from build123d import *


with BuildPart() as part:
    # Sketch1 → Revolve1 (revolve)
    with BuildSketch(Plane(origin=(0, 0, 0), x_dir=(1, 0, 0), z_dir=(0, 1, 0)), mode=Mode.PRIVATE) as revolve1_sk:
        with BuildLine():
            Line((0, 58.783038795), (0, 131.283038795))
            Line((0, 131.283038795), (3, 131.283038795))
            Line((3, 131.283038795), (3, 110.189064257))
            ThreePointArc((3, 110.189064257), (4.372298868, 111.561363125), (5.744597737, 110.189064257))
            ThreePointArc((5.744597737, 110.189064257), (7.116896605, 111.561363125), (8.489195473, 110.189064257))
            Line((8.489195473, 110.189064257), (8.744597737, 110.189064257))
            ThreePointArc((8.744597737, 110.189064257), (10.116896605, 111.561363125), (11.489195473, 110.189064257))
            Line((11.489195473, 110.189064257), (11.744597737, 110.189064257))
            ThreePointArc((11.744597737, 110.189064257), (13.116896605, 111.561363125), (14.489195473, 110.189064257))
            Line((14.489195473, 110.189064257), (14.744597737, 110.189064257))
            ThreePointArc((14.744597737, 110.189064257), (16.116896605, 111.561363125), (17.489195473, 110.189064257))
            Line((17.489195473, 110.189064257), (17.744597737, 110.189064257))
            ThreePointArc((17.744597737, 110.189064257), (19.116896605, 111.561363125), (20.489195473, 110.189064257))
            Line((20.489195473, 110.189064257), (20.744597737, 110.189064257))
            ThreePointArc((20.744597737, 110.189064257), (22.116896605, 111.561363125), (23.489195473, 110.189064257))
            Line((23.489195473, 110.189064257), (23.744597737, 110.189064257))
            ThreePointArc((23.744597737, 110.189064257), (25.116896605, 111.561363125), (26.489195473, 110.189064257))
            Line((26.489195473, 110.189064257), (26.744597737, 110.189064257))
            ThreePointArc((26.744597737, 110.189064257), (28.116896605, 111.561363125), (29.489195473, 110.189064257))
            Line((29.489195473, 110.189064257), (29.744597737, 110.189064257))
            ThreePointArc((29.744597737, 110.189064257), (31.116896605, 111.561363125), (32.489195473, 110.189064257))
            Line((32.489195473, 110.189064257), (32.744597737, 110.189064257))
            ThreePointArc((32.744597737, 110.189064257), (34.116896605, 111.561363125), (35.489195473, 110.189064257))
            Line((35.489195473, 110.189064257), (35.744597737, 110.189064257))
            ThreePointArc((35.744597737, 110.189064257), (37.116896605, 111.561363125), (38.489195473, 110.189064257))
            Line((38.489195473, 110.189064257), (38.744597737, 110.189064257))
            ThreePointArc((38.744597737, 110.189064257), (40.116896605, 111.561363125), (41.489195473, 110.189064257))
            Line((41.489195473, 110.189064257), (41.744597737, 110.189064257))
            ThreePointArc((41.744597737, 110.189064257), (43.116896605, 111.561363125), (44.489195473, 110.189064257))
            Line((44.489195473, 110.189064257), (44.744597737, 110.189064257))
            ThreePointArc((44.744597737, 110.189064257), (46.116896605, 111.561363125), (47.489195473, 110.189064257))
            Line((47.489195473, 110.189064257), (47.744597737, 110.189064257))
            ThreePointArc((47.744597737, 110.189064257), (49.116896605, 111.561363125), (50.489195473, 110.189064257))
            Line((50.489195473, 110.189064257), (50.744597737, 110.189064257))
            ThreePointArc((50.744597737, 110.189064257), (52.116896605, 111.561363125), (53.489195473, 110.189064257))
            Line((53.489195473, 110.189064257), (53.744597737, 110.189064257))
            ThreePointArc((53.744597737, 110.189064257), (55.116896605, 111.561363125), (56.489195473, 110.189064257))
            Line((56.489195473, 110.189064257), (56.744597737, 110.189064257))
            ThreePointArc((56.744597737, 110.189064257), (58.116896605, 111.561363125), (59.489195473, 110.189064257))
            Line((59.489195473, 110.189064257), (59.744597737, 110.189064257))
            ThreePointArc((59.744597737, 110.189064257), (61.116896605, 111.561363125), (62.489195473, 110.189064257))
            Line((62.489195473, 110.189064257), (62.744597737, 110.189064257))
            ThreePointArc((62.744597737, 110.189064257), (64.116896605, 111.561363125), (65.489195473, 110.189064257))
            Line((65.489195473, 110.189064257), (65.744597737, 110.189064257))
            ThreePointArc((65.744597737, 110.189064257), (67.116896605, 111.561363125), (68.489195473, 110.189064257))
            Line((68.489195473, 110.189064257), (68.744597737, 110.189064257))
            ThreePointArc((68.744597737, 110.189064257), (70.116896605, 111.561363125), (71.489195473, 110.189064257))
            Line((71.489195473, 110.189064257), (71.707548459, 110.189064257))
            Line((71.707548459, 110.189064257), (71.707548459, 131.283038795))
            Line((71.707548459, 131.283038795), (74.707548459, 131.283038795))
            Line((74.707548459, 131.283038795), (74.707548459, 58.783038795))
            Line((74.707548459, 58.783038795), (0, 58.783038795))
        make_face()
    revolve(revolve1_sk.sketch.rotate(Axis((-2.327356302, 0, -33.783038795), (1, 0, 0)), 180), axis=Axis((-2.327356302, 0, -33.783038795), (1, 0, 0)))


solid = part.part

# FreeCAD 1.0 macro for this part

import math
import FreeCAD as App
import Part
import Sketcher

V = App.Vector
Q = App.Units.Quantity

doc = App.newDocument("Part")
params = doc.addObject("Spreadsheet::Sheet", "Params")
for row, (alias, value) in enumerate([
    ("sketch1_width", "3 mm"),
    ("sketch1_height", "72.5 mm"),
    ("revolution_angle", "360 deg"),
], start=1):
    params.set(f"A{row}", alias)
    params.set(f"B{row}", "=" + value)
    params.setAlias(f"B{row}", alias)

body = doc.addObject("PartDesign::Body", "Body")

# Sketch on XZ plane
sketch1 = body.newObject("Sketcher::SketchObject", "Sketch")
sketch1.AttachmentSupport = (doc.getObject("XZ_Plane"), [""])
sketch1.MapMode = "FlatFace"
sketch1.addGeometry(Part.LineSegment(V(0, -131.28, 0), V(0, -58.78, 0)), False)
sketch1.addGeometry(Part.LineSegment(V(0, -58.78, 0), V(74.71, -58.78, 0)), False)
sketch1.addGeometry(Part.LineSegment(V(74.71, -58.78, 0), V(74.71, -131.28, 0)), False)
sketch1.addGeometry(Part.LineSegment(V(74.71, -131.28, 0), V(71.71, -131.28, 0)), False)
sketch1.addGeometry(Part.LineSegment(V(71.71, -131.28, 0), V(71.71, -110.19, 0)), False)
sketch1.addGeometry(Part.LineSegment(V(71.71, -110.19, 0), V(71.49, -110.19, 0)), False)
sketch1.addGeometry(Part.ArcOfCircle(Part.Circle(V(70.12, -110.19, 0), V(0, 0, 1), 1.37), math.radians(180), math.radians(360)), False)
sketch1.addGeometry(Part.LineSegment(V(68.74, -110.19, 0), V(68.49, -110.19, 0)), False)
sketch1.addGeometry(Part.ArcOfCircle(Part.Circle(V(67.12, -110.19, 0), V(0, 0, 1), 1.37), math.radians(180), math.radians(360)), False)
sketch1.addGeometry(Part.LineSegment(V(65.74, -110.19, 0), V(65.49, -110.19, 0)), False)
sketch1.addGeometry(Part.ArcOfCircle(Part.Circle(V(64.12, -110.19, 0), V(0, 0, 1), 1.37), math.radians(180), math.radians(360)), False)
sketch1.addGeometry(Part.LineSegment(V(62.74, -110.19, 0), V(62.49, -110.19, 0)), False)
sketch1.addGeometry(Part.ArcOfCircle(Part.Circle(V(61.12, -110.19, 0), V(0, 0, 1), 1.37), math.radians(180), math.radians(360)), False)
sketch1.addGeometry(Part.LineSegment(V(59.74, -110.19, 0), V(59.49, -110.19, 0)), False)
sketch1.addGeometry(Part.ArcOfCircle(Part.Circle(V(58.12, -110.19, 0), V(0, 0, 1), 1.37), math.radians(180), math.radians(360)), False)
sketch1.addGeometry(Part.LineSegment(V(56.74, -110.19, 0), V(56.49, -110.19, 0)), False)
sketch1.addGeometry(Part.ArcOfCircle(Part.Circle(V(55.12, -110.19, 0), V(0, 0, 1), 1.37), math.radians(180), math.radians(360)), False)
sketch1.addGeometry(Part.LineSegment(V(53.74, -110.19, 0), V(53.49, -110.19, 0)), False)
sketch1.addGeometry(Part.ArcOfCircle(Part.Circle(V(52.12, -110.19, 0), V(0, 0, 1), 1.37), math.radians(180), math.radians(360)), False)
sketch1.addGeometry(Part.LineSegment(V(50.74, -110.19, 0), V(50.49, -110.19, 0)), False)
sketch1.addGeometry(Part.ArcOfCircle(Part.Circle(V(49.12, -110.19, 0), V(0, 0, 1), 1.37), math.radians(180), math.radians(360)), False)
sketch1.addGeometry(Part.LineSegment(V(47.74, -110.19, 0), V(47.49, -110.19, 0)), False)
sketch1.addGeometry(Part.ArcOfCircle(Part.Circle(V(46.12, -110.19, 0), V(0, 0, 1), 1.37), math.radians(180), math.radians(360)), False)
sketch1.addGeometry(Part.LineSegment(V(44.74, -110.19, 0), V(44.49, -110.19, 0)), False)
sketch1.addGeometry(Part.ArcOfCircle(Part.Circle(V(43.12, -110.19, 0), V(0, 0, 1), 1.37), math.radians(180), math.radians(360)), False)
sketch1.addGeometry(Part.LineSegment(V(41.74, -110.19, 0), V(41.49, -110.19, 0)), False)
sketch1.addGeometry(Part.ArcOfCircle(Part.Circle(V(40.12, -110.19, 0), V(0, 0, 1), 1.37), math.radians(180), math.radians(360)), False)
sketch1.addGeometry(Part.LineSegment(V(38.74, -110.19, 0), V(38.49, -110.19, 0)), False)
sketch1.addGeometry(Part.ArcOfCircle(Part.Circle(V(37.12, -110.19, 0), V(0, 0, 1), 1.37), math.radians(180), math.radians(360)), False)
sketch1.addGeometry(Part.LineSegment(V(35.74, -110.19, 0), V(35.49, -110.19, 0)), False)
sketch1.addGeometry(Part.ArcOfCircle(Part.Circle(V(34.12, -110.19, 0), V(0, 0, 1), 1.37), math.radians(180), math.radians(360)), False)
sketch1.addGeometry(Part.LineSegment(V(32.74, -110.19, 0), V(32.49, -110.19, 0)), False)
sketch1.addGeometry(Part.ArcOfCircle(Part.Circle(V(31.12, -110.19, 0), V(0, 0, 1), 1.37), math.radians(180), math.radians(360)), False)
sketch1.addGeometry(Part.LineSegment(V(29.74, -110.19, 0), V(29.49, -110.19, 0)), False)
sketch1.addGeometry(Part.ArcOfCircle(Part.Circle(V(28.12, -110.19, 0), V(0, 0, 1), 1.37), math.radians(180), math.radians(360)), False)
sketch1.addGeometry(Part.LineSegment(V(26.74, -110.19, 0), V(26.49, -110.19, 0)), False)
sketch1.addGeometry(Part.ArcOfCircle(Part.Circle(V(25.12, -110.19, 0), V(0, 0, 1), 1.37), math.radians(180), math.radians(360)), False)
sketch1.addGeometry(Part.LineSegment(V(23.74, -110.19, 0), V(23.49, -110.19, 0)), False)
sketch1.addGeometry(Part.ArcOfCircle(Part.Circle(V(22.12, -110.19, 0), V(0, 0, 1), 1.37), math.radians(180), math.radians(360)), False)
sketch1.addGeometry(Part.LineSegment(V(20.74, -110.19, 0), V(20.49, -110.19, 0)), False)
sketch1.addGeometry(Part.ArcOfCircle(Part.Circle(V(19.12, -110.19, 0), V(0, 0, 1), 1.37), math.radians(180), math.radians(360)), False)
sketch1.addGeometry(Part.LineSegment(V(17.74, -110.19, 0), V(17.49, -110.19, 0)), False)
sketch1.addGeometry(Part.ArcOfCircle(Part.Circle(V(16.12, -110.19, 0), V(0, 0, 1), 1.37), math.radians(180), math.radians(360)), False)
sketch1.addGeometry(Part.LineSegment(V(14.74, -110.19, 0), V(14.49, -110.19, 0)), False)
sketch1.addGeometry(Part.ArcOfCircle(Part.Circle(V(13.12, -110.19, 0), V(0, 0, 1), 1.37), math.radians(180), math.radians(360)), False)
sketch1.addGeometry(Part.LineSegment(V(11.74, -110.19, 0), V(11.49, -110.19, 0)), False)
sketch1.addGeometry(Part.ArcOfCircle(Part.Circle(V(10.12, -110.19, 0), V(0, 0, 1), 1.37), math.radians(180), math.radians(360)), False)
sketch1.addGeometry(Part.LineSegment(V(8.74, -110.19, 0), V(8.49, -110.19, 0)), False)
sketch1.addGeometry(Part.ArcOfCircle(Part.Circle(V(7.12, -110.19, 0), V(0, 0, 1), 1.37), math.radians(180), math.radians(360)), False)
sketch1.addGeometry(Part.ArcOfCircle(Part.Circle(V(4.37, -110.19, 0), V(0, 0, 1), 1.37), math.radians(180), math.radians(360)), False)
sketch1.addGeometry(Part.LineSegment(V(3, -110.19, 0), V(3, -131.28, 0)), False)
sketch1.addGeometry(Part.LineSegment(V(3, -131.28, 0), V(0, -131.28, 0)), False)
sketch1.addGeometry(Part.LineSegment(V(0, -33.78, 0), V(74.71, -33.78, 0)), True)  # axis
sketch1.addConstraint(Sketcher.Constraint("Coincident", 0, 2, 1, 1))
sketch1.addConstraint(Sketcher.Constraint("Coincident", 1, 2, 2, 1))
sketch1.addConstraint(Sketcher.Constraint("Coincident", 2, 2, 3, 1))
sketch1.addConstraint(Sketcher.Constraint("Coincident", 3, 2, 4, 1))
sketch1.addConstraint(Sketcher.Constraint("Coincident", 4, 2, 5, 1))
sketch1.addConstraint(Sketcher.Constraint("Coincident", 5, 2, 6, 2))
sketch1.addConstraint(Sketcher.Constraint("Coincident", 6, 1, 7, 1))
sketch1.addConstraint(Sketcher.Constraint("Coincident", 7, 2, 8, 2))
sketch1.addConstraint(Sketcher.Constraint("Coincident", 8, 1, 9, 1))
sketch1.addConstraint(Sketcher.Constraint("Coincident", 9, 2, 10, 2))
sketch1.addConstraint(Sketcher.Constraint("Coincident", 10, 1, 11, 1))
sketch1.addConstraint(Sketcher.Constraint("Coincident", 11, 2, 12, 2))
sketch1.addConstraint(Sketcher.Constraint("Coincident", 12, 1, 13, 1))
sketch1.addConstraint(Sketcher.Constraint("Coincident", 13, 2, 14, 2))
sketch1.addConstraint(Sketcher.Constraint("Coincident", 14, 1, 15, 1))
sketch1.addConstraint(Sketcher.Constraint("Coincident", 15, 2, 16, 2))
sketch1.addConstraint(Sketcher.Constraint("Coincident", 16, 1, 17, 1))
sketch1.addConstraint(Sketcher.Constraint("Coincident", 17, 2, 18, 2))
sketch1.addConstraint(Sketcher.Constraint("Coincident", 18, 1, 19, 1))
sketch1.addConstraint(Sketcher.Constraint("Coincident", 19, 2, 20, 2))
sketch1.addConstraint(Sketcher.Constraint("Coincident", 20, 1, 21, 1))
sketch1.addConstraint(Sketcher.Constraint("Coincident", 21, 2, 22, 2))
sketch1.addConstraint(Sketcher.Constraint("Coincident", 22, 1, 23, 1))
sketch1.addConstraint(Sketcher.Constraint("Coincident", 23, 2, 24, 2))
sketch1.addConstraint(Sketcher.Constraint("Coincident", 24, 1, 25, 1))
sketch1.addConstraint(Sketcher.Constraint("Coincident", 25, 2, 26, 2))
sketch1.addConstraint(Sketcher.Constraint("Coincident", 26, 1, 27, 1))
sketch1.addConstraint(Sketcher.Constraint("Coincident", 27, 2, 28, 2))
sketch1.addConstraint(Sketcher.Constraint("Coincident", 28, 1, 29, 1))
sketch1.addConstraint(Sketcher.Constraint("Coincident", 29, 2, 30, 2))
sketch1.addConstraint(Sketcher.Constraint("Coincident", 30, 1, 31, 1))
sketch1.addConstraint(Sketcher.Constraint("Coincident", 31, 2, 32, 2))
sketch1.addConstraint(Sketcher.Constraint("Coincident", 32, 1, 33, 1))
sketch1.addConstraint(Sketcher.Constraint("Coincident", 33, 2, 34, 2))
sketch1.addConstraint(Sketcher.Constraint("Coincident", 34, 1, 35, 1))
sketch1.addConstraint(Sketcher.Constraint("Coincident", 35, 2, 36, 2))
sketch1.addConstraint(Sketcher.Constraint("Coincident", 36, 1, 37, 1))
sketch1.addConstraint(Sketcher.Constraint("Coincident", 37, 2, 38, 2))
sketch1.addConstraint(Sketcher.Constraint("Coincident", 38, 1, 39, 1))
sketch1.addConstraint(Sketcher.Constraint("Coincident", 39, 2, 40, 2))
sketch1.addConstraint(Sketcher.Constraint("Coincident", 40, 1, 41, 1))
sketch1.addConstraint(Sketcher.Constraint("Coincident", 41, 2, 42, 2))
sketch1.addConstraint(Sketcher.Constraint("Coincident", 42, 1, 43, 1))
sketch1.addConstraint(Sketcher.Constraint("Coincident", 43, 2, 44, 2))
sketch1.addConstraint(Sketcher.Constraint("Coincident", 44, 1, 45, 1))
sketch1.addConstraint(Sketcher.Constraint("Coincident", 45, 2, 46, 2))
sketch1.addConstraint(Sketcher.Constraint("Coincident", 46, 1, 47, 1))
sketch1.addConstraint(Sketcher.Constraint("Coincident", 47, 2, 48, 2))
sketch1.addConstraint(Sketcher.Constraint("Tangent", 48, 1, 49, 2))
sketch1.addConstraint(Sketcher.Constraint("Tangent", 49, 1, 50, 1))
sketch1.addConstraint(Sketcher.Constraint("Coincident", 50, 2, 51, 1))
sketch1.addConstraint(Sketcher.Constraint("Coincident", 51, 2, 0, 1))
sketch1.addConstraint(Sketcher.Constraint("Vertical", 0))
sketch1.addConstraint(Sketcher.Constraint("Horizontal", 1))
sketch1.addConstraint(Sketcher.Constraint("Vertical", 2))
sketch1.addConstraint(Sketcher.Constraint("Horizontal", 3))
sketch1.addConstraint(Sketcher.Constraint("Vertical", 4))
sketch1.addConstraint(Sketcher.Constraint("Horizontal", 5))
sketch1.addConstraint(Sketcher.Constraint("Horizontal", 7))
sketch1.addConstraint(Sketcher.Constraint("Horizontal", 9))
sketch1.addConstraint(Sketcher.Constraint("Horizontal", 11))
sketch1.addConstraint(Sketcher.Constraint("Horizontal", 13))
sketch1.addConstraint(Sketcher.Constraint("Horizontal", 15))
sketch1.addConstraint(Sketcher.Constraint("Horizontal", 17))
sketch1.addConstraint(Sketcher.Constraint("Horizontal", 19))
sketch1.addConstraint(Sketcher.Constraint("Horizontal", 21))
sketch1.addConstraint(Sketcher.Constraint("Horizontal", 23))
sketch1.addConstraint(Sketcher.Constraint("Horizontal", 25))
sketch1.addConstraint(Sketcher.Constraint("Horizontal", 27))
sketch1.addConstraint(Sketcher.Constraint("Horizontal", 29))
sketch1.addConstraint(Sketcher.Constraint("Horizontal", 31))
sketch1.addConstraint(Sketcher.Constraint("Horizontal", 33))
sketch1.addConstraint(Sketcher.Constraint("Horizontal", 35))
sketch1.addConstraint(Sketcher.Constraint("Horizontal", 37))
sketch1.addConstraint(Sketcher.Constraint("Horizontal", 39))
sketch1.addConstraint(Sketcher.Constraint("Horizontal", 41))
sketch1.addConstraint(Sketcher.Constraint("Horizontal", 43))
sketch1.addConstraint(Sketcher.Constraint("Horizontal", 45))
sketch1.addConstraint(Sketcher.Constraint("Horizontal", 47))
sketch1.addConstraint(Sketcher.Constraint("Vertical", 50))
sketch1.addConstraint(Sketcher.Constraint("Horizontal", 51))
sketch1.addConstraint(Sketcher.Constraint("Horizontal", 52))
sketch1.addConstraint(Sketcher.Constraint("Equal", 6, 8))
sketch1.addConstraint(Sketcher.Constraint("Equal", 8, 10))
sketch1.addConstraint(Sketcher.Constraint("Equal", 10, 12))
sketch1.addConstraint(Sketcher.Constraint("Equal", 12, 14))
sketch1.addConstraint(Sketcher.Constraint("Equal", 14, 16))
sketch1.addConstraint(Sketcher.Constraint("Equal", 16, 18))
sketch1.addConstraint(Sketcher.Constraint("Equal", 18, 20))
sketch1.addConstraint(Sketcher.Constraint("Equal", 20, 22))
sketch1.addConstraint(Sketcher.Constraint("Equal", 22, 24))
sketch1.addConstraint(Sketcher.Constraint("Equal", 24, 26))
sketch1.addConstraint(Sketcher.Constraint("Equal", 26, 28))
sketch1.addConstraint(Sketcher.Constraint("Equal", 28, 30))
sketch1.addConstraint(Sketcher.Constraint("Equal", 30, 32))
sketch1.addConstraint(Sketcher.Constraint("Equal", 32, 34))
sketch1.addConstraint(Sketcher.Constraint("Equal", 34, 36))
sketch1.addConstraint(Sketcher.Constraint("Equal", 36, 38))
sketch1.addConstraint(Sketcher.Constraint("Equal", 38, 40))
sketch1.addConstraint(Sketcher.Constraint("Equal", 40, 42))
sketch1.addConstraint(Sketcher.Constraint("Equal", 42, 44))
sketch1.addConstraint(Sketcher.Constraint("Equal", 44, 46))
sketch1.addConstraint(Sketcher.Constraint("Equal", 46, 48))
sketch1.addConstraint(Sketcher.Constraint("Equal", 48, 49))
sketch1.addConstraint(Sketcher.Constraint("PointOnObject", 0, 2, -2))
sketch1.addConstraint(Sketcher.Constraint("PointOnObject", 52, 1, -2))
sketch1.addConstraint(Sketcher.Constraint("Horizontal", 6, 3, 8, 3))
sketch1.addConstraint(Sketcher.Constraint("Horizontal", 8, 3, 10, 3))
sketch1.addConstraint(Sketcher.Constraint("Horizontal", 10, 3, 12, 3))
sketch1.addConstraint(Sketcher.Constraint("Horizontal", 12, 3, 14, 3))
sketch1.addConstraint(Sketcher.Constraint("Horizontal", 14, 3, 16, 3))
sketch1.addConstraint(Sketcher.Constraint("Horizontal", 16, 3, 18, 3))
sketch1.addConstraint(Sketcher.Constraint("Horizontal", 18, 3, 20, 3))
sketch1.addConstraint(Sketcher.Constraint("Horizontal", 20, 3, 22, 3))
sketch1.addConstraint(Sketcher.Constraint("Horizontal", 22, 3, 24, 3))
sketch1.addConstraint(Sketcher.Constraint("Horizontal", 24, 3, 26, 3))
sketch1.addConstraint(Sketcher.Constraint("Horizontal", 26, 3, 28, 3))
sketch1.addConstraint(Sketcher.Constraint("Horizontal", 28, 3, 30, 3))
sketch1.addConstraint(Sketcher.Constraint("Horizontal", 30, 3, 32, 3))
sketch1.addConstraint(Sketcher.Constraint("Horizontal", 32, 3, 34, 3))
sketch1.addConstraint(Sketcher.Constraint("Horizontal", 34, 3, 36, 3))
sketch1.addConstraint(Sketcher.Constraint("Horizontal", 36, 3, 38, 3))
sketch1.addConstraint(Sketcher.Constraint("Horizontal", 38, 3, 40, 3))
sketch1.addConstraint(Sketcher.Constraint("Horizontal", 40, 3, 42, 3))
sketch1.addConstraint(Sketcher.Constraint("Horizontal", 42, 3, 44, 3))
sketch1.addConstraint(Sketcher.Constraint("Horizontal", 44, 3, 46, 3))
sketch1.addConstraint(Sketcher.Constraint("Horizontal", 46, 3, 48, 3))
sketch1.addConstraint(Sketcher.Constraint("Horizontal", 48, 3, 49, 3))
sketch1.addConstraint(Sketcher.Constraint("Horizontal", 49, 3, 4, 2))
sketch1.addConstraint(Sketcher.Constraint("Horizontal", 5, 2, 6, 1))
sketch1.addConstraint(Sketcher.Constraint("Horizontal", 7, 2, 8, 1))
sketch1.addConstraint(Sketcher.Constraint("Horizontal", 9, 2, 10, 1))
sketch1.addConstraint(Sketcher.Constraint("Horizontal", 11, 2, 12, 1))
sketch1.addConstraint(Sketcher.Constraint("Horizontal", 13, 2, 14, 1))
sketch1.addConstraint(Sketcher.Constraint("Horizontal", 15, 2, 16, 1))
sketch1.addConstraint(Sketcher.Constraint("Horizontal", 17, 2, 18, 1))
sketch1.addConstraint(Sketcher.Constraint("Horizontal", 19, 2, 20, 1))
sketch1.addConstraint(Sketcher.Constraint("Horizontal", 21, 2, 22, 1))
sketch1.addConstraint(Sketcher.Constraint("Horizontal", 23, 2, 24, 1))
sketch1.addConstraint(Sketcher.Constraint("Horizontal", 25, 2, 26, 1))
sketch1.addConstraint(Sketcher.Constraint("Horizontal", 27, 2, 28, 1))
sketch1.addConstraint(Sketcher.Constraint("Horizontal", 29, 2, 30, 1))
sketch1.addConstraint(Sketcher.Constraint("Horizontal", 31, 2, 32, 1))
sketch1.addConstraint(Sketcher.Constraint("Horizontal", 33, 2, 34, 1))
sketch1.addConstraint(Sketcher.Constraint("Horizontal", 35, 2, 36, 1))
sketch1.addConstraint(Sketcher.Constraint("Horizontal", 37, 2, 38, 1))
sketch1.addConstraint(Sketcher.Constraint("Horizontal", 39, 2, 40, 1))
sketch1.addConstraint(Sketcher.Constraint("Horizontal", 41, 2, 42, 1))
sketch1.addConstraint(Sketcher.Constraint("Horizontal", 43, 2, 44, 1))
sketch1.addConstraint(Sketcher.Constraint("Horizontal", 45, 2, 46, 1))
sketch1.addConstraint(Sketcher.Constraint("Horizontal", 3, 2, 50, 2))
sketch1.addConstraint(Sketcher.Constraint("Vertical", 2, 2, 52, 2))
sketch1.addConstraint(Sketcher.Constraint("Equal", 7, 9))
sketch1.addConstraint(Sketcher.Constraint("Equal", 9, 11))
sketch1.addConstraint(Sketcher.Constraint("Equal", 11, 13))
sketch1.addConstraint(Sketcher.Constraint("Equal", 13, 15))
sketch1.addConstraint(Sketcher.Constraint("Equal", 15, 17))
sketch1.addConstraint(Sketcher.Constraint("Equal", 17, 19))
sketch1.addConstraint(Sketcher.Constraint("Equal", 19, 21))
sketch1.addConstraint(Sketcher.Constraint("Equal", 21, 23))
sketch1.addConstraint(Sketcher.Constraint("Equal", 23, 25))
sketch1.addConstraint(Sketcher.Constraint("Equal", 25, 27))
sketch1.addConstraint(Sketcher.Constraint("Equal", 27, 29))
sketch1.addConstraint(Sketcher.Constraint("Equal", 29, 31))
sketch1.addConstraint(Sketcher.Constraint("Equal", 31, 33))
sketch1.addConstraint(Sketcher.Constraint("Equal", 33, 35))
sketch1.addConstraint(Sketcher.Constraint("Equal", 35, 37))
sketch1.addConstraint(Sketcher.Constraint("Equal", 37, 39))
sketch1.addConstraint(Sketcher.Constraint("Equal", 39, 41))
sketch1.addConstraint(Sketcher.Constraint("Equal", 41, 43))
sketch1.addConstraint(Sketcher.Constraint("Equal", 43, 45))
sketch1.addConstraint(Sketcher.Constraint("Equal", 45, 47))
sketch1.addConstraint(Sketcher.Constraint("Equal", 3, 51))
sketch1.addConstraint(Sketcher.Constraint("DistanceX", 3, 2, 3, 1, Q("3 mm")))
sketch1.addConstraint(Sketcher.Constraint("DistanceY", 0, 1, 0, 2, Q("72.5 mm")))
sketch1.addConstraint(Sketcher.Constraint("Radius", 6, Q("1.372299 mm")))
sketch1.addConstraint(Sketcher.Constraint("DistanceX", 1, 1, 1, 2, Q("74.707548 mm")))
sketch1.addConstraint(Sketcher.Constraint("DistanceX", 5, 2, 5, 1, Q("0.218353 mm")))
sketch1.addConstraint(Sketcher.Constraint("DistanceY", 4, 1, 4, 2, Q("21.093975 mm")))
sketch1.addConstraint(Sketcher.Constraint("DistanceY", 0, 2, -1, 1, Q("58.783039 mm")))
sketch1.addConstraint(Sketcher.Constraint("DistanceY", 52, 1, -1, 1, Q("33.783039 mm")))
sketch1.setExpression("Constraints[173]", "Params.sketch1_width")
sketch1.setExpression("Constraints[174]", "Params.sketch1_height")
revolution = body.newObject("PartDesign::Revolution", "Revolution")
revolution.Profile = sketch1
revolution.ReferenceAxis = (sketch1, ["Axis0"])
revolution.setExpression("Angle", "Params.revolution_angle")

doc.recompute()
